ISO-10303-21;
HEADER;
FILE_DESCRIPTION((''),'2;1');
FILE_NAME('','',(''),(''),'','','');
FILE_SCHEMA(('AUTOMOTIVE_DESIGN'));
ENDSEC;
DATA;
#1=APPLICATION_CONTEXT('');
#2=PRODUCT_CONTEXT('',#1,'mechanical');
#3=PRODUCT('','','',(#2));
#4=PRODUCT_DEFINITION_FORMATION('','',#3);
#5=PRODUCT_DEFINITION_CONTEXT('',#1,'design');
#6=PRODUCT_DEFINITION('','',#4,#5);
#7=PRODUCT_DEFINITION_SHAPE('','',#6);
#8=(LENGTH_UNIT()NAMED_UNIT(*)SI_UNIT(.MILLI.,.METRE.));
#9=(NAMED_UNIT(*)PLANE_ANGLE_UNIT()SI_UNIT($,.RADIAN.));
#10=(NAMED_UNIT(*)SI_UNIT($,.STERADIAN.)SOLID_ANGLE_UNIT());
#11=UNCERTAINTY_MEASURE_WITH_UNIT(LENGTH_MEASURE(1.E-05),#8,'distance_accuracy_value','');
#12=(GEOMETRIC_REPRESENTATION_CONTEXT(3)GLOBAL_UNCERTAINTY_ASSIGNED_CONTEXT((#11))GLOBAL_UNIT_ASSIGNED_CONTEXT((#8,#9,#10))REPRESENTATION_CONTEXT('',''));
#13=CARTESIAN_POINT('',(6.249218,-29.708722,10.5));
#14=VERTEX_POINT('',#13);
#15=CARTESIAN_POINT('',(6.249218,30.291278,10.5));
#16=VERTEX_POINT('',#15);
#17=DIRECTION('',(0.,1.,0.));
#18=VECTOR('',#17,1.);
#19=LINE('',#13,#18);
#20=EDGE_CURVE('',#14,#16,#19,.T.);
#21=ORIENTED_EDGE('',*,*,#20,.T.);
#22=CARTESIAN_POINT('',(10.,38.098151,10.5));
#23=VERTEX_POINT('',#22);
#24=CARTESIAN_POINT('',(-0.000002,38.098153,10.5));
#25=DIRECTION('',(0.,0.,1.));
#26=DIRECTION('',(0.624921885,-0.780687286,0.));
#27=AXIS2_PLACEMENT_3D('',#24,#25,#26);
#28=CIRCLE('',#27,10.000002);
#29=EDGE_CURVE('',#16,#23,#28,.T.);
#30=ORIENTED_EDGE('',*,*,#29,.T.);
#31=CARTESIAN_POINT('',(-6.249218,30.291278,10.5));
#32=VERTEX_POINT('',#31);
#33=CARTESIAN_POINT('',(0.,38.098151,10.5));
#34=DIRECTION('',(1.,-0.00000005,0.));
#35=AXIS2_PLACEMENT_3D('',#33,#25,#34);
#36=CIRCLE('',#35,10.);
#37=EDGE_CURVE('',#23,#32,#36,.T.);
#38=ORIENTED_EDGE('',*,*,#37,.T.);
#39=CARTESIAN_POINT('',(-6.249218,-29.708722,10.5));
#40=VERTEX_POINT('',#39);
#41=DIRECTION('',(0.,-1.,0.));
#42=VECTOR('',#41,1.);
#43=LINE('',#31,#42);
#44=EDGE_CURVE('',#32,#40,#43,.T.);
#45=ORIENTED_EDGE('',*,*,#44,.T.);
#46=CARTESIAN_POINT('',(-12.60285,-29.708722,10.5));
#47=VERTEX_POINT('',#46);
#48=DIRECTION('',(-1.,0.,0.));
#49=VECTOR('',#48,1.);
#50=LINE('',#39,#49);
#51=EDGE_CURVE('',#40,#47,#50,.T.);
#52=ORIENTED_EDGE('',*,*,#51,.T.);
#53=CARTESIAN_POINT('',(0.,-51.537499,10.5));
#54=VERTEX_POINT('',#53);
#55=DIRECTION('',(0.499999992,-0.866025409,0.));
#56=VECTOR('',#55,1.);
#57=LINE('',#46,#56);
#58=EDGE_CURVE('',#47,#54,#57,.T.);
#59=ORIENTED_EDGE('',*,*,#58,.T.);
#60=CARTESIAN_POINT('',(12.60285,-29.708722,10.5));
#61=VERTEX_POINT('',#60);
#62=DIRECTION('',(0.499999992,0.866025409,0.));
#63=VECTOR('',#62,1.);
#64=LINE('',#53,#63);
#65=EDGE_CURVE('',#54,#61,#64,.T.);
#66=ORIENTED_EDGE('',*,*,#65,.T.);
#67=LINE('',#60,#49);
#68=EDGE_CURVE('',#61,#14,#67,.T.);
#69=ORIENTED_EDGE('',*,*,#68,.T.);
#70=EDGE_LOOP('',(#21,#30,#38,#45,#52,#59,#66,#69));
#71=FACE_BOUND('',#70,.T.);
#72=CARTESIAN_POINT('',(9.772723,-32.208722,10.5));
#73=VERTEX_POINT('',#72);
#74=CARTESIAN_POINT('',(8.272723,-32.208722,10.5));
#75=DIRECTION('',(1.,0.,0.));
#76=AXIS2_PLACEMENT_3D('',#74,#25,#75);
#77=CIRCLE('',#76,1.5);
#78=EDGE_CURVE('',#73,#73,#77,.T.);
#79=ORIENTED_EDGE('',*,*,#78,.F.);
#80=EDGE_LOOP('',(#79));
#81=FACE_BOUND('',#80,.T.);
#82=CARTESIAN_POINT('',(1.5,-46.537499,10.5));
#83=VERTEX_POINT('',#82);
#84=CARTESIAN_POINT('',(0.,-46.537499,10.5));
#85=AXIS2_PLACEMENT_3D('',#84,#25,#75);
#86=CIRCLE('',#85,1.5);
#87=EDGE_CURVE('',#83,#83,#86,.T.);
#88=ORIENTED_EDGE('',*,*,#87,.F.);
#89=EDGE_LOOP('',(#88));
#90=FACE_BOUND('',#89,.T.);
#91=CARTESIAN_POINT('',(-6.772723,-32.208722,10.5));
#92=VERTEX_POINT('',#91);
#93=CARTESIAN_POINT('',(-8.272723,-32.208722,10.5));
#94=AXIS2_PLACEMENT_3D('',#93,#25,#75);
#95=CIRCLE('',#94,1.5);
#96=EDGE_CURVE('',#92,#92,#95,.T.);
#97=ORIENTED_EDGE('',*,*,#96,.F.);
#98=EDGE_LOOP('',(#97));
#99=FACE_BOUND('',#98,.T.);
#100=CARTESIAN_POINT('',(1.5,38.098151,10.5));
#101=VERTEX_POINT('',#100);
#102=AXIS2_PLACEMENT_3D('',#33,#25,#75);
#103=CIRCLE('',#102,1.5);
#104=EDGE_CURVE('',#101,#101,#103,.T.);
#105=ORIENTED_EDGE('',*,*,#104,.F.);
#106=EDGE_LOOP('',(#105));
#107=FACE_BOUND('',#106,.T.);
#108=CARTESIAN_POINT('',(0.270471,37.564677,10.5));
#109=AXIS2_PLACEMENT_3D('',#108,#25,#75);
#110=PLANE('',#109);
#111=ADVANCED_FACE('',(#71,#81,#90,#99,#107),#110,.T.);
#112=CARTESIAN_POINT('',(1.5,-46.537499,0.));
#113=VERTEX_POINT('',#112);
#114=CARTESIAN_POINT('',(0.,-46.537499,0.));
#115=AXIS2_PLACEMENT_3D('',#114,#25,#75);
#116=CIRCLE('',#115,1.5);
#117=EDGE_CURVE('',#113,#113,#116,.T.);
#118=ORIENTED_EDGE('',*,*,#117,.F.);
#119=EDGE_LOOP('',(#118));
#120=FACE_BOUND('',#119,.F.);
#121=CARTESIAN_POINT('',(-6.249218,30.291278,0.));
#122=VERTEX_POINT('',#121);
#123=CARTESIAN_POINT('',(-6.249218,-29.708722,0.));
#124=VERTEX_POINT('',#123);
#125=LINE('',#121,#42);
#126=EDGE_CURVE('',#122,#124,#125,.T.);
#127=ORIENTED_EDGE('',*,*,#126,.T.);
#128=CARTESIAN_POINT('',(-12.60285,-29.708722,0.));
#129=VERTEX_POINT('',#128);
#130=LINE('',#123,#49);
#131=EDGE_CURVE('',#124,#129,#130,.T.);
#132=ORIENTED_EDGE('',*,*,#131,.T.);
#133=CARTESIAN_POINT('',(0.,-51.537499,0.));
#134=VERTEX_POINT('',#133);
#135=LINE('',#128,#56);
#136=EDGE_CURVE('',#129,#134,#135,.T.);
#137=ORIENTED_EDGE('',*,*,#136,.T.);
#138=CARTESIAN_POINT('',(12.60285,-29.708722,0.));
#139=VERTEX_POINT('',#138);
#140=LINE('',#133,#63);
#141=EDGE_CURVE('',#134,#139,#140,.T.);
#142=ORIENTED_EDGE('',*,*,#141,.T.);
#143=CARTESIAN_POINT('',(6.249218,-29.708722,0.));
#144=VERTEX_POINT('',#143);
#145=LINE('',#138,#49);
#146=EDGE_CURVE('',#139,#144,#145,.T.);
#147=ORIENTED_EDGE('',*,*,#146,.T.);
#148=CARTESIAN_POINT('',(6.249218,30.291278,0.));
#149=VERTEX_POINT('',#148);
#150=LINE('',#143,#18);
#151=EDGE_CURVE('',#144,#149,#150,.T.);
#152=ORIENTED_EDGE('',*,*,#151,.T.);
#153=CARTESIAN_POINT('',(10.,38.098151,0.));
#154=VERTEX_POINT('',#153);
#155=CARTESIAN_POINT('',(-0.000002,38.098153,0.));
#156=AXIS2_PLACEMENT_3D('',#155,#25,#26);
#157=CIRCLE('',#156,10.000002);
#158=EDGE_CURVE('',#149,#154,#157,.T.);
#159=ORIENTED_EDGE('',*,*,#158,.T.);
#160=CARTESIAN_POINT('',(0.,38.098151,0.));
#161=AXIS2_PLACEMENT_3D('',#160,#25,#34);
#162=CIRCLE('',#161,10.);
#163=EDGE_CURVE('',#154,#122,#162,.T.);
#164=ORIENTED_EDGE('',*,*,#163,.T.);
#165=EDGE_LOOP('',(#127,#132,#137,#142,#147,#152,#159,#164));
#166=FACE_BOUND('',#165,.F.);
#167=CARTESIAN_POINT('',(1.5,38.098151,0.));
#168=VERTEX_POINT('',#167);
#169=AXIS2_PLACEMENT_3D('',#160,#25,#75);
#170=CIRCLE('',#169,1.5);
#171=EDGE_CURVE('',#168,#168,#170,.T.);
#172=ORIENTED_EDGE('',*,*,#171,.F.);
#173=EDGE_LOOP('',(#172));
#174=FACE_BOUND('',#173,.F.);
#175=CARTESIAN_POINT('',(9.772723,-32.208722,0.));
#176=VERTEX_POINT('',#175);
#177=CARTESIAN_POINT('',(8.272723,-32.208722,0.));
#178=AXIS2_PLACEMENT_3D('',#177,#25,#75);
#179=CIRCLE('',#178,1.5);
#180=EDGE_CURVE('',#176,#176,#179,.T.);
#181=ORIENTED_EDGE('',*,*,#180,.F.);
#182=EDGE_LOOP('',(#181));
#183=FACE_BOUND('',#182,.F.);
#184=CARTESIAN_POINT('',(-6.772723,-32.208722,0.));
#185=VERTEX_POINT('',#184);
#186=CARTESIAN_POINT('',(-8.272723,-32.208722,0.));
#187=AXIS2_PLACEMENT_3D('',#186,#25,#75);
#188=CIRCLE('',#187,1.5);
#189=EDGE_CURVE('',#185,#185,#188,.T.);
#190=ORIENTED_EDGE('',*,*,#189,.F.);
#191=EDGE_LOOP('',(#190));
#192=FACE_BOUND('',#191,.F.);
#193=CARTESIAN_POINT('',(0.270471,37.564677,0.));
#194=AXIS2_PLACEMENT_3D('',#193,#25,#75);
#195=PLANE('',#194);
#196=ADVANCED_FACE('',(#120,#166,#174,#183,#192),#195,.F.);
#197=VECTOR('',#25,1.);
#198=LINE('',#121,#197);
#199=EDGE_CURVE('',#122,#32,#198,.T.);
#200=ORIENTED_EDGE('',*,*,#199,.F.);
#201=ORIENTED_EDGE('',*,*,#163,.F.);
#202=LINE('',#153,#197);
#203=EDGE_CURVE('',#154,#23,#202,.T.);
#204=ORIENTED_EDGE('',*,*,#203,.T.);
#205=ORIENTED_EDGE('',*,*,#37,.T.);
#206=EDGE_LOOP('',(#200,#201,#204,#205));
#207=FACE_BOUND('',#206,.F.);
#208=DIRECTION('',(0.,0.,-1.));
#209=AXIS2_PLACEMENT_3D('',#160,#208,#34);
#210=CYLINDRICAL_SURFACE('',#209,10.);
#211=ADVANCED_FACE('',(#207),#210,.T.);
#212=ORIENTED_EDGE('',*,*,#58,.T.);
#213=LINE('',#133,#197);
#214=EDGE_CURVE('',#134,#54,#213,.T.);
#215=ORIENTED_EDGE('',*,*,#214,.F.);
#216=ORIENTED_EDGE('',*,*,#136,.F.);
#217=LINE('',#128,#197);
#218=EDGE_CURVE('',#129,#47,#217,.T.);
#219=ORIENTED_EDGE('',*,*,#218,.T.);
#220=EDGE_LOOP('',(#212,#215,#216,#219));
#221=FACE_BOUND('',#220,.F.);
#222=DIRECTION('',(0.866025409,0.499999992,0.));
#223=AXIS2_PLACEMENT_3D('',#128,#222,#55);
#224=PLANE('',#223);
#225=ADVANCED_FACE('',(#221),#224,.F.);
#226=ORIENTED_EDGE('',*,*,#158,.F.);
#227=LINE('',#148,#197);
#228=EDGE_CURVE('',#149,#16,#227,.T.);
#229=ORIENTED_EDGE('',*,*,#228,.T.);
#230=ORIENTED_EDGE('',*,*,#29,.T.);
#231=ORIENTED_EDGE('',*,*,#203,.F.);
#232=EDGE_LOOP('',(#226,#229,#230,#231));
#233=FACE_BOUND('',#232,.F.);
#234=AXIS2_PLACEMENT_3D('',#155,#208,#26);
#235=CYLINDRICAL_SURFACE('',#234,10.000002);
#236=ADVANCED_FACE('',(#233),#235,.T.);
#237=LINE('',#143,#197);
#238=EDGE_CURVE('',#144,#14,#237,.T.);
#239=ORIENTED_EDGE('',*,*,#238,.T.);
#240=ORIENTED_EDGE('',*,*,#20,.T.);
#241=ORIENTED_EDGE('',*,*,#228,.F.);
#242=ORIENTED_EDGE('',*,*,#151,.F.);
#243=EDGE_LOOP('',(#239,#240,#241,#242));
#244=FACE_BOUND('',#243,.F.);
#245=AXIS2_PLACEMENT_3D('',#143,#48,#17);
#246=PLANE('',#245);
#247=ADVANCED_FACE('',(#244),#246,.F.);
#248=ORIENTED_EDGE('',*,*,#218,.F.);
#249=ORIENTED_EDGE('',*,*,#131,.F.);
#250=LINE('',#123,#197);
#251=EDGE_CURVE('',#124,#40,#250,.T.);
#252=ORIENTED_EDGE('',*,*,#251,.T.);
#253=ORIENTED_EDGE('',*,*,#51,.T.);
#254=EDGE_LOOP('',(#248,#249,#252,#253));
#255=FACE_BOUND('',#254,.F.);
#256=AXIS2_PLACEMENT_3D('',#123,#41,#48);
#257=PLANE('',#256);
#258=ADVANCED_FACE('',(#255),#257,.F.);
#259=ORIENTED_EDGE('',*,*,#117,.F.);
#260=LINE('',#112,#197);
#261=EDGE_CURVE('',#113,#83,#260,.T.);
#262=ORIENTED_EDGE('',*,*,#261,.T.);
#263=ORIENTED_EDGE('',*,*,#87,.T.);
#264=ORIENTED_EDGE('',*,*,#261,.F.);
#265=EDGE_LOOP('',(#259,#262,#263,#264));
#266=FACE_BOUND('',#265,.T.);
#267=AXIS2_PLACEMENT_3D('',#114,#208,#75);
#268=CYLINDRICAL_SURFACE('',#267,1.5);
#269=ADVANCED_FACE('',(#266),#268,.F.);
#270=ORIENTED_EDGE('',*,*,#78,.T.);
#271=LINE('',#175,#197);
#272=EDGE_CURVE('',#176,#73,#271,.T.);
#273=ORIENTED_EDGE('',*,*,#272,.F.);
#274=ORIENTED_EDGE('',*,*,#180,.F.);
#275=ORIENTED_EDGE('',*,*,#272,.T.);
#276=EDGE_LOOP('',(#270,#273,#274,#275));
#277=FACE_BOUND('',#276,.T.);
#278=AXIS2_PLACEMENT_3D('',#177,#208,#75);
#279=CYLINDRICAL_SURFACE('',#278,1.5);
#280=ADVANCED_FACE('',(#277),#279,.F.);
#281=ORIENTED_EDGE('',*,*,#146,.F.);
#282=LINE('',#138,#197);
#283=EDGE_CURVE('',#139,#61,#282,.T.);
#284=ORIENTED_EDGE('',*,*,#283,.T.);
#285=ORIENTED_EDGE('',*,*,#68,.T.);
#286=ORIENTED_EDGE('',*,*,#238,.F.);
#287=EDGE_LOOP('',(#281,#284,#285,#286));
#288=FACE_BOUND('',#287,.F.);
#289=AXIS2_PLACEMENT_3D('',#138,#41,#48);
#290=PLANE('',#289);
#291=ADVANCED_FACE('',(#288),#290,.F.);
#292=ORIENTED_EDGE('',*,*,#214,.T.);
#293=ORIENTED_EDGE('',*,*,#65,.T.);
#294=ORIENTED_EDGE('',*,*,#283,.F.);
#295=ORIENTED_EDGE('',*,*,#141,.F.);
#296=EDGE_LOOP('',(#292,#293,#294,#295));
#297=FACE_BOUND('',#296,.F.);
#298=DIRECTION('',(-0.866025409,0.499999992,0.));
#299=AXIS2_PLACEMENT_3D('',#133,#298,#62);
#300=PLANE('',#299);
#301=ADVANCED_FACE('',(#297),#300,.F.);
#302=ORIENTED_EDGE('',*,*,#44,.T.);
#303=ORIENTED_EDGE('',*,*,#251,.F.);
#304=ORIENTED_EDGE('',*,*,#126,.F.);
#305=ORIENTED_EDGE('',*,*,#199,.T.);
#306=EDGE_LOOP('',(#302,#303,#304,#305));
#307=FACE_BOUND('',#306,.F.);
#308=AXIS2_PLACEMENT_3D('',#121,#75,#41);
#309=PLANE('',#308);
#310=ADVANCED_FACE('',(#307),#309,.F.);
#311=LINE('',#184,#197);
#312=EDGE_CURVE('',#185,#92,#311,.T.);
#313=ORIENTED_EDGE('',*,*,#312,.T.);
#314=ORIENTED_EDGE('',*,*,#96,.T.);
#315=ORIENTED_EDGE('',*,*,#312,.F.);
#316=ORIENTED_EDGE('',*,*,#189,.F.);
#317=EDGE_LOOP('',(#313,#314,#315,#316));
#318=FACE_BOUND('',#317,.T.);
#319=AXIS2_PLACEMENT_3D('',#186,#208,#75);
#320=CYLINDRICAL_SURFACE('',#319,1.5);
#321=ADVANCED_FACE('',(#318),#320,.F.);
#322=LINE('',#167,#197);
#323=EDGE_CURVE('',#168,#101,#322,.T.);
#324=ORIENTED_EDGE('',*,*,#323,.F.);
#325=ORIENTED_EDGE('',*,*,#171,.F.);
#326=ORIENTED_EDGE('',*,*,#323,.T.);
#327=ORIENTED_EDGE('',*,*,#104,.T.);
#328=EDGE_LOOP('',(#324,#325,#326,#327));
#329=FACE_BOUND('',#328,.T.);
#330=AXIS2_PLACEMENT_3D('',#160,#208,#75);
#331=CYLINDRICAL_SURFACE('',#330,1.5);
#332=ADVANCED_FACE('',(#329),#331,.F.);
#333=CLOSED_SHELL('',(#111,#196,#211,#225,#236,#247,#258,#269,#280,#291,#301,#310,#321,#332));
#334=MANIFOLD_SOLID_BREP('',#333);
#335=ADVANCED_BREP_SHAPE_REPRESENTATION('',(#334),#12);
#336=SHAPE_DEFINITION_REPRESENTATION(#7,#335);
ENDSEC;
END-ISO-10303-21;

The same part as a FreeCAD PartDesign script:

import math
import FreeCAD as App
import Part
import Sketcher

V = App.Vector
Q = App.Units.Quantity

doc = App.newDocument("Part")
body = doc.addObject("PartDesign::Body", "Body")

sketch1 = doc.addObject("Sketcher::SketchObject", "Sketch")
body.addObject(sketch1)
sketch1.AttachmentSupport = (doc.XY_Plane, [""])
sketch1.MapMode = "FlatFace"
sketch1.addGeometry([
    Part.ArcOfCircle(Part.Circle(V(-0.000002, 38.098153, 0), V(0, 0, 1), 10.000002), math.radians(-51.323546), math.radians(-0.000009)),
    Part.ArcOfCircle(Part.Circle(V(0, 38.098151, 0), V(0, 0, 1), 10), math.radians(-0.000003), math.radians(231.323552)),
    Part.LineSegment(V(-6.249218, 30.291278, 0), V(-6.249218, -29.708722, 0)),
    Part.LineSegment(V(-6.249218, -29.708722, 0), V(-12.60285, -29.708722, 0)),
    Part.LineSegment(V(-12.60285, -29.708722, 0), V(0, -51.537499, 0)),
    Part.LineSegment(V(0, -51.537499, 0), V(12.60285, -29.708722, 0)),
    Part.LineSegment(V(12.60285, -29.708722, 0), V(6.249218, -29.708722, 0)),
    Part.LineSegment(V(6.249218, -29.708722, 0), V(6.249218, 30.291278, 0)),
    Part.Circle(V(-8.272723, -32.208722, 0), V(0, 0, 1), 1.5),
    Part.Circle(V(0, -46.537499, 0), V(0, 0, 1), 1.5),
    Part.Circle(V(8.272723, -32.208722, 0), V(0, 0, 1), 1.5),
    Part.Circle(V(0, 38.098151, 0), V(0, 0, 1), 1.5),
], False)
sketch1.addConstraint([
    Sketcher.Constraint("Tangent", 0, 2, 1, 1),
    Sketcher.Constraint("Coincident", 1, 2, 2, 1),
    Sketcher.Constraint("Coincident", 2, 2, 3, 1),
    Sketcher.Constraint("Coincident", 3, 2, 4, 1),
    Sketcher.Constraint("Coincident", 4, 2, 5, 1),
    Sketcher.Constraint("Coincident", 5, 2, 6, 1),
    Sketcher.Constraint("Coincident", 6, 2, 7, 1),
    Sketcher.Constraint("Coincident", 7, 2, 0, 1),
    Sketcher.Constraint("Vertical", 2),
    Sketcher.Constraint("Horizontal", 3),
    Sketcher.Constraint("Horizontal", 6),
    Sketcher.Constraint("Vertical", 7),
    Sketcher.Constraint("Coincident", 11, 3, 0, 3),
    Sketcher.Constraint("Equal", 8, 9),
    Sketcher.Constraint("Equal", 9, 10),
    Sketcher.Constraint("Equal", 10, 11),
    Sketcher.Constraint("Symmetric", 8, 3, 10, 3, -2),
    Sketcher.Constraint("Symmetric", 3, 2, 5, 2, -2),
    Sketcher.Constraint("Symmetric", 1, 2, 7, 2, -2),
    Sketcher.Constraint("PointOnObject", 1, 3, -2),
    Sketcher.Constraint("PointOnObject", 9, 3, -2),
    Sketcher.Constraint("PointOnObject", 4, 2, -2),
    Sketcher.Constraint("Horizontal", 11, 3, 0, 2),
    Sketcher.Constraint("Diameter", 8, Q("3 mm")),
    Sketcher.Constraint("Radius", 1, Q("10 mm")),
    Sketcher.Constraint("DistanceY", 2, 2, 2, 1, Q("60 mm")),
    Sketcher.Constraint("Angle", 4, Q("-60.000001 deg")),
    Sketcher.Constraint("DistanceY", 4, 2, 9, 3, Q("5 mm")),
    Sketcher.Constraint("DistanceY", 8, 3, 1, 2, Q("62.5 mm")),
    Sketcher.Constraint("Distance", 4, Q("25.2057 mm")),
    Sketcher.Constraint("DistanceY", 9, 3, -1, 1, Q("46.537499 mm")),
    Sketcher.Constraint("DistanceX", 3, 2, 3, 1, Q("6.353632 mm")),
    Sketcher.Constraint("DistanceX", 8, 3, 0, 3, Q("8.272721 mm")),
])
pad1 = doc.addObject("PartDesign::Pad", "Pad")
body.addObject(pad1)
pad1.Profile = sketch1
pad1.Length = 10.5

doc.recompute()
